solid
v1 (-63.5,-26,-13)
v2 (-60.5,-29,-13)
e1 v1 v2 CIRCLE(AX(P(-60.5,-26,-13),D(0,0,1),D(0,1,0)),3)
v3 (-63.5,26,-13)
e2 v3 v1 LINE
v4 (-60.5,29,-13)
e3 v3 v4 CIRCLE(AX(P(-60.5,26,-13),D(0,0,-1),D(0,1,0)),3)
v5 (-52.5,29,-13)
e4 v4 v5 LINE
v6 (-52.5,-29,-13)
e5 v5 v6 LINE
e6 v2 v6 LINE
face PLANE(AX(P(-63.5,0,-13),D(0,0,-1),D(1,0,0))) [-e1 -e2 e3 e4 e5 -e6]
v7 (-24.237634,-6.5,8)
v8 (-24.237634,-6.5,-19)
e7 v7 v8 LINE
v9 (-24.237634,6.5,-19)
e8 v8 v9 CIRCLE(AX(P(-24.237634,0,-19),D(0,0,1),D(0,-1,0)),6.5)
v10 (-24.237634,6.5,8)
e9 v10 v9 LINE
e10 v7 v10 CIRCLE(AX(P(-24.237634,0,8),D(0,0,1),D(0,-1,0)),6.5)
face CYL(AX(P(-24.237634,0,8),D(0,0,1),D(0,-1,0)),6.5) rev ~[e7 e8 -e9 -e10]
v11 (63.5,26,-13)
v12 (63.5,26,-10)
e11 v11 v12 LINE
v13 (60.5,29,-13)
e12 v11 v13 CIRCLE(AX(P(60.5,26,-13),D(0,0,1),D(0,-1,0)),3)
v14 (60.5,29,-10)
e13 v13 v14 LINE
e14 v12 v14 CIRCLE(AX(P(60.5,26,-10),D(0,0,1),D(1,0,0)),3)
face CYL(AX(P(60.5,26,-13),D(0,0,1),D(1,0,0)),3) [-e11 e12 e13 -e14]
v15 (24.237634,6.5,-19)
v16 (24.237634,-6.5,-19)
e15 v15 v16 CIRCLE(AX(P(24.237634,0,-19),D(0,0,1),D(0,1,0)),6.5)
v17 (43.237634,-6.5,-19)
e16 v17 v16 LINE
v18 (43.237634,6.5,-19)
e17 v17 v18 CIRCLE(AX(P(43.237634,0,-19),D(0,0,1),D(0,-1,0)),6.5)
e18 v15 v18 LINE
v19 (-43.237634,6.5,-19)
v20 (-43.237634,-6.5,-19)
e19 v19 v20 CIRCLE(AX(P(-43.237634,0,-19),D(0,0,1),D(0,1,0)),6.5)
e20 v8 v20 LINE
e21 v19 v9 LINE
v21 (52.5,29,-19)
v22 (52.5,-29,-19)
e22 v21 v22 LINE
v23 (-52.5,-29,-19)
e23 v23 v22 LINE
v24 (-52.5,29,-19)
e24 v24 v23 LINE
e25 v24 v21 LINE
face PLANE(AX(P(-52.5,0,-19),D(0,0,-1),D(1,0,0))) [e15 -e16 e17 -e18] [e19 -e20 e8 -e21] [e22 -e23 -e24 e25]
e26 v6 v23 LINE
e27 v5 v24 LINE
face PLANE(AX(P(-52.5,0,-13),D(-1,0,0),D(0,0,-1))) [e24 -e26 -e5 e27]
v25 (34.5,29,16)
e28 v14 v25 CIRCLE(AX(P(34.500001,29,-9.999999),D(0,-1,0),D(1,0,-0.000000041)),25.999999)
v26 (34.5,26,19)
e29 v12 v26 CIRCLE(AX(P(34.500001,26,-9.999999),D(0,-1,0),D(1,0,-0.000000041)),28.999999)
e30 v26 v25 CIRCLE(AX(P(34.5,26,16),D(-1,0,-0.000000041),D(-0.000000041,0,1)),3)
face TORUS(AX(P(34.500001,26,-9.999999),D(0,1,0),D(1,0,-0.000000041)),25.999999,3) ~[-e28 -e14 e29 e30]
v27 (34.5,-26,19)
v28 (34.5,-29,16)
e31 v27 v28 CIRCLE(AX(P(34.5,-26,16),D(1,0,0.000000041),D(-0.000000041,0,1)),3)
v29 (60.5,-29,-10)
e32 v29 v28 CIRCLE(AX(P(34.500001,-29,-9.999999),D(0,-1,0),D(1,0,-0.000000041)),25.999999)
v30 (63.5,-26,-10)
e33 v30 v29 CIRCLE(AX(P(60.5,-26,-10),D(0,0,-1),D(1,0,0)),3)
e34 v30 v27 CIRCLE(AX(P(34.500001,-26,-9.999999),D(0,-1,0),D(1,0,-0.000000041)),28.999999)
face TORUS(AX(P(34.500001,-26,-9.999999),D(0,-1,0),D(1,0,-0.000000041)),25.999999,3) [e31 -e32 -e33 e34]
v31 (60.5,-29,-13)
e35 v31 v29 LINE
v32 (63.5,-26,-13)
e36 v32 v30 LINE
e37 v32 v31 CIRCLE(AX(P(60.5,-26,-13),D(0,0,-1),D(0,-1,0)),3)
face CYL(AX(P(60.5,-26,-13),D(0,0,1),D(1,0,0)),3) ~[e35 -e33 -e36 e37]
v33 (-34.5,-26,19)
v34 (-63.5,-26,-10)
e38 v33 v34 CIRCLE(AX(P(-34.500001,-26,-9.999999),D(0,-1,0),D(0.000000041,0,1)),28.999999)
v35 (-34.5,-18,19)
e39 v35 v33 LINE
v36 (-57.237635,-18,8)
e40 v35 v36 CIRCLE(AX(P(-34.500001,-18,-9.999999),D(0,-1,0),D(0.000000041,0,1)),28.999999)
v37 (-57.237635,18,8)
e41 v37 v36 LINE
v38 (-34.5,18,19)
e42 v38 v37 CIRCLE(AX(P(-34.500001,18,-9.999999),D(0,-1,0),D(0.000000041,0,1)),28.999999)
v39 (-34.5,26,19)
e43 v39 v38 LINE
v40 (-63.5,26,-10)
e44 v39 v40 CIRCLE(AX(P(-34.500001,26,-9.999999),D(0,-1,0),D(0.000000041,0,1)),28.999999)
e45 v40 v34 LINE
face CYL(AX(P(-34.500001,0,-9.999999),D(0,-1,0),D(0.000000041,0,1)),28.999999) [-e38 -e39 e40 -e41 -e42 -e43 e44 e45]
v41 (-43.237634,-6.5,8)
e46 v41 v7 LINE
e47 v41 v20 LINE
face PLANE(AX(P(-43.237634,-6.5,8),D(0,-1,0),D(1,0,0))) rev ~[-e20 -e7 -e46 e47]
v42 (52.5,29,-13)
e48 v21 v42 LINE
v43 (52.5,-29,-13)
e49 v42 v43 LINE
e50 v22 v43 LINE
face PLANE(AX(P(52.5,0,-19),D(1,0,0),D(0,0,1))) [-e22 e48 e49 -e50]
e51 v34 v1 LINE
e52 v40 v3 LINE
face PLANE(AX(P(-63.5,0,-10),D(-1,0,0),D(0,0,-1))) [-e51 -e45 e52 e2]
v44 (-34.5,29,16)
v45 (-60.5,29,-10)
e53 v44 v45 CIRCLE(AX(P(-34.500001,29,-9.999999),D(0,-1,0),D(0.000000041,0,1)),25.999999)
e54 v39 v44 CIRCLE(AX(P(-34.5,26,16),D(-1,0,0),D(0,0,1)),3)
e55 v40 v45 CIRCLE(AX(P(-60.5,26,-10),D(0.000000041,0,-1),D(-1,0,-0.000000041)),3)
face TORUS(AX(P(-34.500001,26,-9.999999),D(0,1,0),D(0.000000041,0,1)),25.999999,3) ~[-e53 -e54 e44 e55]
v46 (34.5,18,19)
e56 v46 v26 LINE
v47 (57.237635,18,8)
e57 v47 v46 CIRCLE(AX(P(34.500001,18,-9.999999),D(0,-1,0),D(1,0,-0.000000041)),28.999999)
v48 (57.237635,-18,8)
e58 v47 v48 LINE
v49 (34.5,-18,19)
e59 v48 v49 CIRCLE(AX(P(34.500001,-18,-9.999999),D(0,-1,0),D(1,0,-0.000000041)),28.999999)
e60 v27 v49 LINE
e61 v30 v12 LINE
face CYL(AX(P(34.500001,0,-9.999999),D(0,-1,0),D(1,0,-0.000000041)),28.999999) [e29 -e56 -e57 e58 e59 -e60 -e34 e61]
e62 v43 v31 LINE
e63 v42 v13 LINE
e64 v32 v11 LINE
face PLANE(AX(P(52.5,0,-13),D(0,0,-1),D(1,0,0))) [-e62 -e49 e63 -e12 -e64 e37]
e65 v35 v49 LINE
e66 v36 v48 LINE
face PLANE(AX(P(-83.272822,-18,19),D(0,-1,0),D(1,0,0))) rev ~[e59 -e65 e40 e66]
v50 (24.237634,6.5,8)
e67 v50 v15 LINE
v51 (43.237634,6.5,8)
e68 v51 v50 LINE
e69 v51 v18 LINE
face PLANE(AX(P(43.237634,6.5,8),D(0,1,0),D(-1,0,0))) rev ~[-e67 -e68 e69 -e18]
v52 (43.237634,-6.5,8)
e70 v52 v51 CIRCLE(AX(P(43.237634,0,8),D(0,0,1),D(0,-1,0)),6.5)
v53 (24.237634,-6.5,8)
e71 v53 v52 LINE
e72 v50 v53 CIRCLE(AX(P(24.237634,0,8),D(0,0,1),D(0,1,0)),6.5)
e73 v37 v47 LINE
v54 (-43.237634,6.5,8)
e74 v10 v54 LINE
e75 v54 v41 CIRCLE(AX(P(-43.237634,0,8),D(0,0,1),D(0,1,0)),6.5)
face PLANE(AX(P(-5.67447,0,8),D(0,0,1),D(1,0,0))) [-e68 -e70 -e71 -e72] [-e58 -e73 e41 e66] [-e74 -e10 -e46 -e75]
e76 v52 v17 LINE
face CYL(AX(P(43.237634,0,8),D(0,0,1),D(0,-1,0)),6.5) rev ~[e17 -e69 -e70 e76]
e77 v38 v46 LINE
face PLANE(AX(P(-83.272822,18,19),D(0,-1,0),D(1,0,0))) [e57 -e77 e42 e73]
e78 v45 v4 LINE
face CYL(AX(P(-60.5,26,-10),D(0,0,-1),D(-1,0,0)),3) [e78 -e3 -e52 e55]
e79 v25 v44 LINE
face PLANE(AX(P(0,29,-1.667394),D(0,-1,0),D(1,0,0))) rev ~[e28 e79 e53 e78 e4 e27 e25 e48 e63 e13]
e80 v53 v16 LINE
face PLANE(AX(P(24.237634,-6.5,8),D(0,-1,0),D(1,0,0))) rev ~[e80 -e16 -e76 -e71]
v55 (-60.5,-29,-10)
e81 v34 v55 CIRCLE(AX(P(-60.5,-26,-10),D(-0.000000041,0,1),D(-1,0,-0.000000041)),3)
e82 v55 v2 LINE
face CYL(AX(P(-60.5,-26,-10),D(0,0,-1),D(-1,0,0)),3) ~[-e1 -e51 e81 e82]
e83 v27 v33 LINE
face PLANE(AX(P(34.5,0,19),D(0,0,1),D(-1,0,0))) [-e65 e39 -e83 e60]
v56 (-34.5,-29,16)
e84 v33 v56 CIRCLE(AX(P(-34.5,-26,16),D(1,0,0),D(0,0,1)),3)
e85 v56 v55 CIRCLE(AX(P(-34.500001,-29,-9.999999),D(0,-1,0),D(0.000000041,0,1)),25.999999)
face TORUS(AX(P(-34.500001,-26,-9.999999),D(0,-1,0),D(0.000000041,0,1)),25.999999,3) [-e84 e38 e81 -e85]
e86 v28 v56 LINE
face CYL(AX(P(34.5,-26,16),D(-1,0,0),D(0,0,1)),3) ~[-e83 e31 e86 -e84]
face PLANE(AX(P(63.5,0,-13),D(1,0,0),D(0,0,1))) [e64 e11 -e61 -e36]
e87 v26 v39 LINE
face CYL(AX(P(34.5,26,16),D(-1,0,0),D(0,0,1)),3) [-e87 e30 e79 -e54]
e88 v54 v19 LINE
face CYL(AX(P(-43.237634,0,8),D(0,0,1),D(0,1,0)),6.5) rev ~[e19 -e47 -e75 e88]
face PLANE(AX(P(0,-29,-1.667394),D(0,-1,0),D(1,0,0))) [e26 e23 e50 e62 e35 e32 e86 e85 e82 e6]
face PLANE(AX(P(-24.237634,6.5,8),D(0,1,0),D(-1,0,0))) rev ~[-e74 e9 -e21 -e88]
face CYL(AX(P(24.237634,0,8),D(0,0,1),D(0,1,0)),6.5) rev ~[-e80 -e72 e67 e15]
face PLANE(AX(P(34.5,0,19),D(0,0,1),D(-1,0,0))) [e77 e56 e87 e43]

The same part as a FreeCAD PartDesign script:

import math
import FreeCAD as App
import Part
import Sketcher
from FreeCAD import Vector
Q = App.Units.Quantity


def edges_at(feature, points):
    """Names of the edges that pass closest to the given points."""
    edges = feature.Shape.Edges
    near = lambda p: min(range(len(edges)), key=lambda i: edges[i].distToShape(Part.Vertex(*p))[0])
    return sorted({f"Edge{near(p) + 1}" for p in points})

doc = App.newDocument("Part")
body = doc.addObject("PartDesign::Body", "Body")

# Sketch on XZ plane
sketch1 = body.newObject("Sketcher::SketchObject", "Sketch")
sketch1.AttachmentSupport = (doc.getObject("XZ_Plane"), [""])
sketch1.MapMode = "FlatFace"
sketch1.addGeometry(Part.LineSegment(Vector(34.5, 19, 0), Vector(-34.5, 19, 0)), False)
sketch1.addGeometry(Part.ArcOfCircle(Part.Circle(Vector(-34.5, -10, 0), Vector(0, 0, 1), 29), math.radians(90), math.radians(180)), False)
sketch1.addGeometry(Part.LineSegment(Vector(-63.5, -10, 0), Vector(-63.5, -13, 0)), False)
sketch1.addGeometry(Part.LineSegment(Vector(-63.5, -13, 0), Vector(-52.5, -13, 0)), False)
sketch1.addGeometry(Part.LineSegment(Vector(-52.5, -13, 0), Vector(-52.5, -19, 0)), False)
sketch1.addGeometry(Part.LineSegment(Vector(-52.5, -19, 0), Vector(52.5, -19, 0)), False)
sketch1.addGeometry(Part.LineSegment(Vector(52.5, -19, 0), Vector(52.5, -13, 0)), False)
sketch1.addGeometry(Part.LineSegment(Vector(52.5, -13, 0), Vector(63.5, -13, 0)), False)
sketch1.addGeometry(Part.LineSegment(Vector(63.5, -13, 0), Vector(63.5, -10, 0)), False)
sketch1.addGeometry(Part.ArcOfCircle(Part.Circle(Vector(34.5, -10, 0), Vector(0, 0, 1), 29), math.radians(0), math.radians(90)), False)
sketch1.addConstraint(Sketcher.Constraint("Tangent", 0, 2, 1, 1))
sketch1.addConstraint(Sketcher.Constraint("Tangent", 1, 2, 2, 1))
sketch1.addConstraint(Sketcher.Constraint("Coincident", 2, 2, 3, 1))
sketch1.addConstraint(Sketcher.Constraint("Coincident", 3, 2, 4, 1))
sketch1.addConstraint(Sketcher.Constraint("Coincident", 4, 2, 5, 1))
sketch1.addConstraint(Sketcher.Constraint("Coincident", 5, 2, 6, 1))
sketch1.addConstraint(Sketcher.Constraint("Coincident", 6, 2, 7, 1))
sketch1.addConstraint(Sketcher.Constraint("Coincident", 7, 2, 8, 1))
sketch1.addConstraint(Sketcher.Constraint("Tangent", 8, 2, 9, 1))
sketch1.addConstraint(Sketcher.Constraint("Tangent", 9, 2, 0, 1))
sketch1.addConstraint(Sketcher.Constraint("Horizontal", 0))
sketch1.addConstraint(Sketcher.Constraint("Vertical", 2))
sketch1.addConstraint(Sketcher.Constraint("Horizontal", 3))
sketch1.addConstraint(Sketcher.Constraint("Vertical", 4))
sketch1.addConstraint(Sketcher.Constraint("Horizontal", 5))
sketch1.addConstraint(Sketcher.Constraint("Vertical", 6))
sketch1.addConstraint(Sketcher.Constraint("Horizontal", 7))
sketch1.addConstraint(Sketcher.Constraint("Vertical", 8))
sketch1.addConstraint(Sketcher.Constraint("Equal", 1, 9))
sketch1.addConstraint(Sketcher.Constraint("Symmetric", 3, 2, 6, 2, -2))
sketch1.addConstraint(Sketcher.Constraint("Equal", 3, 7))
sketch1.addConstraint(Sketcher.Constraint("Radius", 1, Q("28.999999 mm")))
sketch1.addConstraint(Sketcher.Constraint("DistanceX", 0, 2, 0, 1, Q("69 mm")))
sketch1.addConstraint(Sketcher.Constraint("DistanceX", 3, 1, 3, 2, Q("11 mm")))
sketch1.addConstraint(Sketcher.Constraint("DistanceY", 2, 2, 2, 1, Q("3 mm")))
sketch1.addConstraint(Sketcher.Constraint("DistanceY", 4, 2, 4, 1, Q("6 mm")))
sketch1.addConstraint(Sketcher.Constraint("DistanceY", 1, 3, -1, 1, Q("9.999999 mm")))
pad1 = body.newObject("PartDesign::Pad", "Pad")
pad1.Profile = sketch1
pad1.Length = 58
pad1.Midplane = True

# Sketch on XY plane
sketch2 = body.newObject("Sketcher::SketchObject", "Sketch001")
sketch2.AttachmentSupport = (doc.getObject("XY_Plane"), [""])
sketch2.MapMode = "FlatFace"
sketch2.AttachmentOffset = App.Placement(Vector(0, 0, 19), App.Rotation())
sketch2.addGeometry(Part.LineSegment(Vector(-83, 18, 0), Vector(-83, -18, 0)), False)
sketch2.addGeometry(Part.LineSegment(Vector(-83, -18, 0), Vector(72, -18, 0)), False)
sketch2.addGeometry(Part.LineSegment(Vector(72, -18, 0), Vector(72, 18, 0)), False)
sketch2.addGeometry(Part.LineSegment(Vector(72, 18, 0), Vector(-83, 18, 0)), False)
sketch2.addConstraint(Sketcher.Constraint("Coincident", 0, 2, 1, 1))
sketch2.addConstraint(Sketcher.Constraint("Coincident", 1, 2, 2, 1))
sketch2.addConstraint(Sketcher.Constraint("Coincident", 2, 2, 3, 1))
sketch2.addConstraint(Sketcher.Constraint("Coincident", 3, 2, 0, 1))
sketch2.addConstraint(Sketcher.Constraint("Vertical", 0))
sketch2.addConstraint(Sketcher.Constraint("Horizontal", 1))
sketch2.addConstraint(Sketcher.Constraint("Vertical", 2))
sketch2.addConstraint(Sketcher.Constraint("Horizontal", 3))
sketch2.addConstraint(Sketcher.Constraint("DistanceY", 0, 2, 0, 1, Q("36 mm")))
sketch2.addConstraint(Sketcher.Constraint("DistanceY", 0, 2, -1, 1, Q("18 mm")))
sketch2.addConstraint(Sketcher.Constraint("DistanceX", 1, 1, 1, 2, Q("155.196704 mm")))
sketch2.addConstraint(Sketcher.Constraint("DistanceX", 0, 2, -1, 1, Q("83.272822 mm")))
pocket1 = body.newObject("PartDesign::Pocket", "Pocket")
pocket1.Profile = sketch2
pocket1.Length = 11

# Sketch on XY plane
sketch3 = body.newObject("Sketcher::SketchObject", "Sketch002")
sketch3.AttachmentSupport = (doc.getObject("XY_Plane"), [""])
sketch3.MapMode = "FlatFace"
sketch3.AttachmentOffset = App.Placement(Vector(0, 0, 8), App.Rotation())
sketch3.addGeometry(Part.LineSegment(Vector(-24, 6, 0), Vector(-43, 6, 0)), False)
sketch3.addGeometry(Part.ArcOfCircle(Part.Circle(Vector(-43, 0, 0), Vector(0, 0, 1), 6), math.radians(90), math.radians(270)), False)
sketch3.addGeometry(Part.LineSegment(Vector(-43, -6, 0), Vector(-24, -6, 0)), False)
sketch3.addGeometry(Part.ArcOfCircle(Part.Circle(Vector(-24, 0, 0), Vector(0, 0, 1), 6), math.radians(-90), math.radians(90)), False)
sketch3.addGeometry(Part.LineSegment(Vector(43, 6, 0), Vector(24, 6, 0)), False)
sketch3.addGeometry(Part.ArcOfCircle(Part.Circle(Vector(24, 0, 0), Vector(0, 0, 1), 6), math.radians(90), math.radians(270)), False)
sketch3.addGeometry(Part.LineSegment(Vector(24, -6, 0), Vector(43, -6, 0)), False)
sketch3.addGeometry(Part.ArcOfCircle(Part.Circle(Vector(43, 0, 0), Vector(0, 0, 1), 6), math.radians(-90), math.radians(90)), False)
sketch3.addConstraint(Sketcher.Constraint("Tangent", 0, 2, 1, 1))
sketch3.addConstraint(Sketcher.Constraint("Tangent", 1, 2, 2, 1))
sketch3.addConstraint(Sketcher.Constraint("Tangent", 2, 2, 3, 1))
sketch3.addConstraint(Sketcher.Constraint("Tangent", 3, 2, 0, 1))
sketch3.addConstraint(Sketcher.Constraint("Tangent", 4, 2, 5, 1))
sketch3.addConstraint(Sketcher.Constraint("Tangent", 5, 2, 6, 1))
sketch3.addConstraint(Sketcher.Constraint("Tangent", 6, 2, 7, 1))
sketch3.addConstraint(Sketcher.Constraint("Tangent", 7, 2, 4, 1))
sketch3.addConstraint(Sketcher.Constraint("Horizontal", 0))
sketch3.addConstraint(Sketcher.Constraint("Horizontal", 2))
sketch3.addConstraint(Sketcher.Constraint("Horizontal", 4))
sketch3.addConstraint(Sketcher.Constraint("Horizontal", 6))
sketch3.addConstraint(Sketcher.Constraint("Equal", 3, 5))
sketch3.addConstraint(Sketcher.Constraint("Symmetric", 3, 3, 5, 3, -1, 1))
sketch3.addConstraint(Sketcher.Constraint("Symmetric", 1, 3, 7, 3, -2))
sketch3.addConstraint(Sketcher.Constraint("Radius", 1, Q("6.5 mm")))
sketch3.addConstraint(Sketcher.Constraint("DistanceX", 0, 2, 0, 1, Q("19 mm")))
sketch3.addConstraint(Sketcher.Constraint("DistanceX", 1, 3, 5, 3, Q("67.475268 mm")))
pocket2 = body.newObject("PartDesign::Pocket", "Pocket001")
pocket2.Profile = sketch3
pocket2.Type = "ThroughAll"
doc.recompute()

fillet = body.newObject("PartDesign::Fillet", "Fillet")
fillet.Base = (pocket2, edges_at(pocket2, [(-55.006, -29, 10.506), (55.006, 29, 10.506)]))
fillet.Radius = 3

doc.recompute()
